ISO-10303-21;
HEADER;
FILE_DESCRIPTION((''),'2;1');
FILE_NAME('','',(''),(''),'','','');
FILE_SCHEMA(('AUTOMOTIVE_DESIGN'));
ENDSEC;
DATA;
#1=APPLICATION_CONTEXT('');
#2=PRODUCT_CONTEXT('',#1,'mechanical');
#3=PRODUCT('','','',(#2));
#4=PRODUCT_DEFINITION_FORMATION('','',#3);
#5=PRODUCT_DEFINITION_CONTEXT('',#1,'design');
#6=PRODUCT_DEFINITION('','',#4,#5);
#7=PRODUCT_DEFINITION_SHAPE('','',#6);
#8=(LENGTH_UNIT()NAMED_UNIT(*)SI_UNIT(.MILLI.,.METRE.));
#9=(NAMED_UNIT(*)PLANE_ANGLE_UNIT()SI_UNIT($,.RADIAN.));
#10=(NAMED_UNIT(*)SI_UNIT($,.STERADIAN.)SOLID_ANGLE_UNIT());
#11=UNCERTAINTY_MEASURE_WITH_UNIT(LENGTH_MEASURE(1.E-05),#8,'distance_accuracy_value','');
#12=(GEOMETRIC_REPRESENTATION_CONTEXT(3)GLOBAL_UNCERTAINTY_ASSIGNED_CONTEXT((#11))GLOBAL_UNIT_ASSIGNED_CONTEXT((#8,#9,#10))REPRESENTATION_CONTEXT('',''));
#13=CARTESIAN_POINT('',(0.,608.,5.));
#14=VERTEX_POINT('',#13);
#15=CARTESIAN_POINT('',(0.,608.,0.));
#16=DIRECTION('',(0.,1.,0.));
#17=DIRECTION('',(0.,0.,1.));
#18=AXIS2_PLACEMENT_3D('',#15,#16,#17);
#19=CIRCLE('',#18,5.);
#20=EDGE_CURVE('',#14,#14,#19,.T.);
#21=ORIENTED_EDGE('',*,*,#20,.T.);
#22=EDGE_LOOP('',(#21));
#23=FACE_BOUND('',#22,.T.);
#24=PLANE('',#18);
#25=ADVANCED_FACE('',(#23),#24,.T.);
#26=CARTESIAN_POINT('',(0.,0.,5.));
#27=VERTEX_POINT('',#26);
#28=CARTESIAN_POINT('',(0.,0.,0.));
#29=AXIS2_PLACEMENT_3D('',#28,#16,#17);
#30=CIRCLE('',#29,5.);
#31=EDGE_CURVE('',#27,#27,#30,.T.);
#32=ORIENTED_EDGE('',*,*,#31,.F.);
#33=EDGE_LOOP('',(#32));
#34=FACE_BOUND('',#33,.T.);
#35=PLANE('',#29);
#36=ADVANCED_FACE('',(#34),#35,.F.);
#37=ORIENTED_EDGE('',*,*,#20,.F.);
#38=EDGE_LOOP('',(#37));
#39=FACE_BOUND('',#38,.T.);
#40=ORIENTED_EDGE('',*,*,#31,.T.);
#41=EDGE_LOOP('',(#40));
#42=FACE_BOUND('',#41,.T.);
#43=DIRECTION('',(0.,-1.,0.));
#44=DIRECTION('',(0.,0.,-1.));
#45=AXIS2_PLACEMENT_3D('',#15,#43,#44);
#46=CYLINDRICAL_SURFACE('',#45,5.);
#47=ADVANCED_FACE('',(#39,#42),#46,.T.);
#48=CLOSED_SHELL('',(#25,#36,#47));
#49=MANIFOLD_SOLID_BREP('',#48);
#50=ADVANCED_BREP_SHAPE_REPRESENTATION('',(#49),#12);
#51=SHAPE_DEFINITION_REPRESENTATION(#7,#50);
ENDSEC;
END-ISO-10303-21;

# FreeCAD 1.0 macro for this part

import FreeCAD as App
import Part
import Sketcher

V = App.Vector
Q = App.Units.Quantity

doc = App.newDocument("Part")
body = doc.addObject("PartDesign::Body", "Body")

sketch1 = body.newObject("Sketcher::SketchObject", "Sketch")
sketch1.AttachmentSupport = (doc.getObject("XZ_Plane"), [""])
sketch1.MapMode = "FlatFace"
sketch1.addGeometry(Part.Circle(V(0, 0, 0), V(0, 0, 1), 5), False)
sketch1.addConstraint([
    Sketcher.Constraint("Coincident", 0, 3, -1, 1),
    Sketcher.Constraint("Diameter", 0, Q("10 mm")),
])
pad1 = body.newObject("PartDesign::Pad", "Pad")
pad1.Profile = sketch1
pad1.Length = 608
pad1.Reversed = True

doc.recompute()
